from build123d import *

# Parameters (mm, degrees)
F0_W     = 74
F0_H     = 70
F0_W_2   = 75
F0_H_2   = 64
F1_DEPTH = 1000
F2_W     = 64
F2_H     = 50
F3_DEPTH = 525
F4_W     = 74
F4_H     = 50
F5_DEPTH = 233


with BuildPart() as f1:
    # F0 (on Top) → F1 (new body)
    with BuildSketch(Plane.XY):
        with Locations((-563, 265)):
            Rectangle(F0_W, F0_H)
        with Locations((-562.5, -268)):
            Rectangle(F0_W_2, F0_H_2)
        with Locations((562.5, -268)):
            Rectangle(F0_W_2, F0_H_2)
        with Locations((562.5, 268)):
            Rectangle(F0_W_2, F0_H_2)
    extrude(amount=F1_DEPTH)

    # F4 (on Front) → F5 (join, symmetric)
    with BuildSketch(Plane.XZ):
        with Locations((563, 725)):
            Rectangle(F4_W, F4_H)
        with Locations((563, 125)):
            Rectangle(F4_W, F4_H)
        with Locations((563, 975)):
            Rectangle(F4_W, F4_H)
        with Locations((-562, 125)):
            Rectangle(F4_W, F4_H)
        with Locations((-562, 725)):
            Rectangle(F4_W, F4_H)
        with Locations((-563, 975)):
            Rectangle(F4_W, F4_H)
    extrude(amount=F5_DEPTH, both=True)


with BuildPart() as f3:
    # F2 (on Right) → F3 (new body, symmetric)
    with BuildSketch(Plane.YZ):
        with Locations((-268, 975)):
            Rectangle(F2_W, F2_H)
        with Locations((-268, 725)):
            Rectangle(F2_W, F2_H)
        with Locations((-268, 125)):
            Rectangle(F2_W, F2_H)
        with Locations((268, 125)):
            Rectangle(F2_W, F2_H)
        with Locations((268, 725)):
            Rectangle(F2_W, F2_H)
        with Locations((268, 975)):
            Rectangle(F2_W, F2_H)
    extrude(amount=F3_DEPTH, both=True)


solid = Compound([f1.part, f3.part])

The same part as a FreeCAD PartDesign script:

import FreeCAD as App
import Part
import Sketcher
from FreeCAD import Vector

doc = App.newDocument("Part")
body = doc.addObject("PartDesign::Body", "Body")
body.AllowCompound = True

# Sketch on XY plane
sketch1 = body.newObject("Sketcher::SketchObject", "Sketch")
sketch1.AttachmentSupport = (doc.getObject("XY_Plane"), [""])
sketch1.MapMode = "FlatFace"
sketch1.addGeometry([
    Part.LineSegment(Vector(-600, 300, 0), Vector(-600, 230, 0)),  # 0
    Part.LineSegment(Vector(-600, 230, 0), Vector(-526, 230, 0)),  # 1
    Part.LineSegment(Vector(-526, 230, 0), Vector(-526, 300, 0)),  # 2
    Part.LineSegment(Vector(-526, 300, 0), Vector(-600, 300, 0)),  # 3
    Part.LineSegment(Vector(-600, -236, 0), Vector(-600, -300, 0)),  # 4
    Part.LineSegment(Vector(-600, -300, 0), Vector(-525, -300, 0)),  # 5
    Part.LineSegment(Vector(-525, -300, 0), Vector(-525, -236, 0)),  # 6
    Part.LineSegment(Vector(-525, -236, 0), Vector(-600, -236, 0)),  # 7
    Part.LineSegment(Vector(525, -236, 0), Vector(525, -300, 0)),  # 8
    Part.LineSegment(Vector(525, -300, 0), Vector(600, -300, 0)),  # 9
    Part.LineSegment(Vector(600, -300, 0), Vector(600, -236, 0)),  # 10
    Part.LineSegment(Vector(600, -236, 0), Vector(525, -236, 0)),  # 11
    Part.LineSegment(Vector(525, 300, 0), Vector(525, 236, 0)),  # 12
    Part.LineSegment(Vector(525, 236, 0), Vector(600, 236, 0)),  # 13
    Part.LineSegment(Vector(600, 236, 0), Vector(600, 300, 0)),  # 14
    Part.LineSegment(Vector(600, 300, 0), Vector(525, 300, 0)),  # 15
], False)
sketch1.addConstraint([
    Sketcher.Constraint("Coincident", 0, 2, 1, 1),
    Sketcher.Constraint("Coincident", 1, 2, 2, 1),
    Sketcher.Constraint("Coincident", 2, 2, 3, 1),
    Sketcher.Constraint("Coincident", 3, 2, 0, 1),
    Sketcher.Constraint("Coincident", 4, 2, 5, 1),
    Sketcher.Constraint("Coincident", 5, 2, 6, 1),
    Sketcher.Constraint("Coincident", 6, 2, 7, 1),
    Sketcher.Constraint("Coincident", 7, 2, 4, 1),
    Sketcher.Constraint("Coincident", 8, 2, 9, 1),
    Sketcher.Constraint("Coincident", 9, 2, 10, 1),
    Sketcher.Constraint("Coincident", 10, 2, 11, 1),
    Sketcher.Constraint("Coincident", 11, 2, 8, 1),
    Sketcher.Constraint("Coincident", 12, 2, 13, 1),
    Sketcher.Constraint("Coincident", 13, 2, 14, 1),
    Sketcher.Constraint("Coincident", 14, 2, 15, 1),
    Sketcher.Constraint("Coincident", 15, 2, 12, 1),
    Sketcher.Constraint("Vertical", 0),
    Sketcher.Constraint("Horizontal", 1),
    Sketcher.Constraint("Vertical", 2),
    Sketcher.Constraint("Horizontal", 3),
    Sketcher.Constraint("Vertical", 4),
    Sketcher.Constraint("Horizontal", 5),
    Sketcher.Constraint("Vertical", 6),
    Sketcher.Constraint("Horizontal", 7),
    Sketcher.Constraint("Vertical", 8),
    Sketcher.Constraint("Horizontal", 9),
    Sketcher.Constraint("Vertical", 10),
    Sketcher.Constraint("Horizontal", 11),
    Sketcher.Constraint("Vertical", 12),
    Sketcher.Constraint("Horizontal", 13),
    Sketcher.Constraint("Vertical", 14),
    Sketcher.Constraint("Horizontal", 15),
    Sketcher.Constraint("Symmetric", 3, 2, 9, 2, -1, 1),
    Sketcher.Constraint("Symmetric", 6, 2, 12, 2, -1, 1),
    Sketcher.Constraint("Symmetric", 4, 2, 14, 2, -1, 1),
    Sketcher.Constraint("Symmetric", 5, 2, 8, 2, -2),
    Sketcher.Constraint("Symmetric", 7, 2, 10, 2, -2),
    Sketcher.Constraint("DistanceX", 1, 1, 1, 2, 74.0),
    Sketcher.Constraint("DistanceX", 5, 1, 5, 2, 75.0),
    Sketcher.Constraint("DistanceY", 0, 2, 0, 1, 70.0),
    Sketcher.Constraint("DistanceY", 4, 2, 4, 1, 64.0),
    Sketcher.Constraint("DistanceX", 0, 2, -1, 1, 600.0),
    Sketcher.Constraint("DistanceY", -1, 1, 0, 2, 230.0),
])
pad1 = body.newObject("PartDesign::Pad", "Pad")
pad1.Profile = sketch1
pad1.Length = 1000

# Sketch on XZ plane
sketch2 = body.newObject("Sketcher::SketchObject", "Sketch001")
sketch2.AttachmentSupport = (doc.getObject("XZ_Plane"), [""])
sketch2.MapMode = "FlatFace"
sketch2.addGeometry([
    Part.LineSegment(Vector(526, 750, 0), Vector(526, 700, 0)),  # 0
    Part.LineSegment(Vector(526, 700, 0), Vector(600, 700, 0)),  # 1
    Part.LineSegment(Vector(600, 700, 0), Vector(600, 750, 0)),  # 2
    Part.LineSegment(Vector(600, 750, 0), Vector(526, 750, 0)),  # 3
    Part.LineSegment(Vector(526, 150, 0), Vector(526, 100, 0)),  # 4
    Part.LineSegment(Vector(526, 100, 0), Vector(600, 100, 0)),  # 5
    Part.LineSegment(Vector(600, 100, 0), Vector(600, 150, 0)),  # 6
    Part.LineSegment(Vector(600, 150, 0), Vector(526, 150, 0)),  # 7
    Part.LineSegment(Vector(526, 1000, 0), Vector(526, 950, 0)),  # 8
    Part.LineSegment(Vector(526, 950, 0), Vector(600, 950, 0)),  # 9
    Part.LineSegment(Vector(600, 950, 0), Vector(600, 1000, 0)),  # 10
    Part.LineSegment(Vector(600, 1000, 0), Vector(526, 1000, 0)),  # 11
    Part.LineSegment(Vector(-599, 150, 0), Vector(-599, 100, 0)),  # 12
    Part.LineSegment(Vector(-599, 100, 0), Vector(-525, 100, 0)),  # 13
    Part.LineSegment(Vector(-525, 100, 0), Vector(-525, 150, 0)),  # 14
    Part.LineSegment(Vector(-525, 150, 0), Vector(-599, 150, 0)),  # 15
    Part.LineSegment(Vector(-599, 750, 0), Vector(-599, 700, 0)),  # 16
    Part.LineSegment(Vector(-599, 700, 0), Vector(-525, 700, 0)),  # 17
    Part.LineSegment(Vector(-525, 700, 0), Vector(-525, 750, 0)),  # 18
    Part.LineSegment(Vector(-525, 750, 0), Vector(-599, 750, 0)),  # 19
    Part.LineSegment(Vector(-600, 1000, 0), Vector(-600, 950, 0)),  # 20
    Part.LineSegment(Vector(-600, 950, 0), Vector(-526, 950, 0)),  # 21
    Part.LineSegment(Vector(-526, 950, 0), Vector(-526, 1000, 0)),  # 22
    Part.LineSegment(Vector(-526, 1000, 0), Vector(-600, 1000, 0)),  # 23
], False)
sketch2.addConstraint([
    Sketcher.Constraint("Coincident", 0, 2, 1, 1),
    Sketcher.Constraint("Coincident", 1, 2, 2, 1),
    Sketcher.Constraint("Coincident", 2, 2, 3, 1),
    Sketcher.Constraint("Coincident", 3, 2, 0, 1),
    Sketcher.Constraint("Coincident", 4, 2, 5, 1),
    Sketcher.Constraint("Coincident", 5, 2, 6, 1),
    Sketcher.Constraint("Coincident", 6, 2, 7, 1),
    Sketcher.Constraint("Coincident", 7, 2, 4, 1),
    Sketcher.Constraint("Coincident", 8, 2, 9, 1),
    Sketcher.Constraint("Coincident", 9, 2, 10, 1),
    Sketcher.Constraint("Coincident", 10, 2, 11, 1),
    Sketcher.Constraint("Coincident", 11, 2, 8, 1),
    Sketcher.Constraint("Coincident", 12, 2, 13, 1),
    Sketcher.Constraint("Coincident", 13, 2, 14, 1),
    Sketcher.Constraint("Coincident", 14, 2, 15, 1),
    Sketcher.Constraint("Coincident", 15, 2, 12, 1),
    Sketcher.Constraint("Coincident", 16, 2, 17, 1),
    Sketcher.Constraint("Coincident", 17, 2, 18, 1),
    Sketcher.Constraint("Coincident", 18, 2, 19, 1),
    Sketcher.Constraint("Coincident", 19, 2, 16, 1),
    Sketcher.Constraint("Coincident", 20, 2, 21, 1),
    Sketcher.Constraint("Coincident", 21, 2, 22, 1),
    Sketcher.Constraint("Coincident", 22, 2, 23, 1),
    Sketcher.Constraint("Coincident", 23, 2, 20, 1),
    Sketcher.Constraint("Vertical", 0),
    Sketcher.Constraint("Horizontal", 1),
    Sketcher.Constraint("Vertical", 2),
    Sketcher.Constraint("Horizontal", 3),
    Sketcher.Constraint("Vertical", 4),
    Sketcher.Constraint("Horizontal", 5),
    Sketcher.Constraint("Vertical", 6),
    Sketcher.Constraint("Horizontal", 7),
    Sketcher.Constraint("Vertical", 8),
    Sketcher.Constraint("Horizontal", 9),
    Sketcher.Constraint("Vertical", 10),
    Sketcher.Constraint("Horizontal", 11),
    Sketcher.Constraint("Vertical", 12),
    Sketcher.Constraint("Horizontal", 13),
    Sketcher.Constraint("Vertical", 14),
    Sketcher.Constraint("Horizontal", 15),
    Sketcher.Constraint("Vertical", 16),
    Sketcher.Constraint("Horizontal", 17),
    Sketcher.Constraint("Vertical", 18),
    Sketcher.Constraint("Horizontal", 19),
    Sketcher.Constraint("Vertical", 20),
    Sketcher.Constraint("Horizontal", 21),
    Sketcher.Constraint("Vertical", 22),
    Sketcher.Constraint("Horizontal", 23),
    Sketcher.Constraint("Symmetric", 9, 2, 20, 2, -2),
    Sketcher.Constraint("Symmetric", 11, 2, 22, 2, -2),
    Sketcher.Constraint("Horizontal", 5, 2, 12, 2),
    Sketcher.Constraint("Horizontal", 7, 2, 14, 2),
    Sketcher.Constraint("Horizontal", 1, 2, 16, 2),
    Sketcher.Constraint("Horizontal", 3, 2, 18, 2),
    Sketcher.Constraint("Vertical", 3, 2, 4, 2),
    Sketcher.Constraint("Vertical", 2, 2, 5, 2),
    Sketcher.Constraint("Vertical", 7, 2, 8, 2),
    Sketcher.Constraint("Vertical", 6, 2, 9, 2),
    Sketcher.Constraint("Vertical", 15, 2, 16, 2),
    Sketcher.Constraint("Vertical", 14, 2, 17, 2),
    Sketcher.Constraint("Equal", 11, 13),
    Sketcher.Constraint("Equal", 2, 4),
    Sketcher.Constraint("Equal", 6, 8),
    Sketcher.Constraint("DistanceX", 1, 1, 1, 2, 74.0),
    Sketcher.Constraint("DistanceY", 0, 2, 0, 1, 50.0),
    Sketcher.Constraint("DistanceX", -1, 1, 0, 2, 526.0),
    Sketcher.Constraint("DistanceY", -1, 1, 0, 2, 700.0),
    Sketcher.Constraint("DistanceY", -1, 1, 4, 2, 100.0),
    Sketcher.Constraint("DistanceY", -1, 1, 8, 2, 950.0),
    Sketcher.Constraint("DistanceX", 12, 2, -1, 1, 599.0),
])
pad2 = body.newObject("PartDesign::Pad", "Pad001")
pad2.Profile = sketch2
pad2.Length = 466
pad2.Midplane = True
body2 = doc.addObject("PartDesign::Body", "Body001")
body2.AllowCompound = True

# Sketch on YZ plane
sketch3 = body2.newObject("Sketcher::SketchObject", "Sketch002")
sketch3.AttachmentSupport = (doc.getObject("YZ_Plane001"), [""])
sketch3.MapMode = "FlatFace"
sketch3.addGeometry([
    Part.LineSegment(Vector(-300, 1000, 0), Vector(-300, 950, 0)),  # 0
    Part.LineSegment(Vector(-300, 950, 0), Vector(-236, 950, 0)),  # 1
    Part.LineSegment(Vector(-236, 950, 0), Vector(-236, 1000, 0)),  # 2
    Part.LineSegment(Vector(-236, 1000, 0), Vector(-300, 1000, 0)),  # 3
    Part.LineSegment(Vector(-300, 750, 0), Vector(-300, 700, 0)),  # 4
    Part.LineSegment(Vector(-300, 700, 0), Vector(-236, 700, 0)),  # 5
    Part.LineSegment(Vector(-236, 700, 0), Vector(-236, 750, 0)),  # 6
    Part.LineSegment(Vector(-236, 750, 0), Vector(-300, 750, 0)),  # 7
    Part.LineSegment(Vector(-300, 150, 0), Vector(-300, 100, 0)),  # 8
    Part.LineSegment(Vector(-300, 100, 0), Vector(-236, 100, 0)),  # 9
    Part.LineSegment(Vector(-236, 100, 0), Vector(-236, 150, 0)),  # 10
    Part.LineSegment(Vector(-236, 150, 0), Vector(-300, 150, 0)),  # 11
    Part.LineSegment(Vector(236, 150, 0), Vector(236, 100, 0)),  # 12
    Part.LineSegment(Vector(236, 100, 0), Vector(300, 100, 0)),  # 13
    Part.LineSegment(Vector(300, 100, 0), Vector(300, 150, 0)),  # 14
    Part.LineSegment(Vector(300, 150, 0), Vector(236, 150, 0)),  # 15
    Part.LineSegment(Vector(236, 750, 0), Vector(236, 700, 0)),  # 16
    Part.LineSegment(Vector(236, 700, 0), Vector(300, 700, 0)),  # 17
    Part.LineSegment(Vector(300, 700, 0), Vector(300, 750, 0)),  # 18
    Part.LineSegment(Vector(300, 750, 0), Vector(236, 750, 0)),  # 19
    Part.LineSegment(Vector(236, 1000, 0), Vector(236, 950, 0)),  # 20
    Part.LineSegment(Vector(236, 950, 0), Vector(300, 950, 0)),  # 21
    Part.LineSegment(Vector(300, 950, 0), Vector(300, 1000, 0)),  # 22
    Part.LineSegment(Vector(300, 1000, 0), Vector(236, 1000, 0)),  # 23
], False)
sketch3.addConstraint([
    Sketcher.Constraint("Coincident", 0, 2, 1, 1),
    Sketcher.Constraint("Coincident", 1, 2, 2, 1),
    Sketcher.Constraint("Coincident", 2, 2, 3, 1),
    Sketcher.Constraint("Coincident", 3, 2, 0, 1),
    Sketcher.Constraint("Coincident", 4, 2, 5, 1),
    Sketcher.Constraint("Coincident", 5, 2, 6, 1),
    Sketcher.Constraint("Coincident", 6, 2, 7, 1),
    Sketcher.Constraint("Coincident", 7, 2, 4, 1),
    Sketcher.Constraint("Coincident", 8, 2, 9, 1),
    Sketcher.Constraint("Coincident", 9, 2, 10, 1),
    Sketcher.Constraint("Coincident", 10, 2, 11, 1),
    Sketcher.Constraint("Coincident", 11, 2, 8, 1),
    Sketcher.Constraint("Coincident", 12, 2, 13, 1),
    Sketcher.Constraint("Coincident", 13, 2, 14, 1),
    Sketcher.Constraint("Coincident", 14, 2, 15, 1),
    Sketcher.Constraint("Coincident", 15, 2, 12, 1),
    Sketcher.Constraint("Coincident", 16, 2, 17, 1),
    Sketcher.Constraint("Coincident", 17, 2, 18, 1),
    Sketcher.Constraint("Coincident", 18, 2, 19, 1),
    Sketcher.Constraint("Coincident", 19, 2, 16, 1),
    Sketcher.Constraint("Coincident", 20, 2, 21, 1),
    Sketcher.Constraint("Coincident", 21, 2, 22, 1),
    Sketcher.Constraint("Coincident", 22, 2, 23, 1),
    Sketcher.Constraint("Coincident", 23, 2, 20, 1),
    Sketcher.Constraint("Vertical", 0),
    Sketcher.Constraint("Horizontal", 1),
    Sketcher.Constraint("Vertical", 2),
    Sketcher.Constraint("Horizontal", 3),
    Sketcher.Constraint("Vertical", 4),
    Sketcher.Constraint("Horizontal", 5),
    Sketcher.Constraint("Vertical", 6),
    Sketcher.Constraint("Horizontal", 7),
    Sketcher.Constraint("Vertical", 8),
    Sketcher.Constraint("Horizontal", 9),
    Sketcher.Constraint("Vertical", 10),
    Sketcher.Constraint("Horizontal", 11),
    Sketcher.Constraint("Vertical", 12),
    Sketcher.Constraint("Horizontal", 13),
    Sketcher.Constraint("Vertical", 14),
    Sketcher.Constraint("Horizontal", 15),
    Sketcher.Constraint("Vertical", 16),
    Sketcher.Constraint("Horizontal", 17),
    Sketcher.Constraint("Vertical", 18),
    Sketcher.Constraint("Horizontal", 19),
    Sketcher.Constraint("Vertical", 20),
    Sketcher.Constraint("Horizontal", 21),
    Sketcher.Constraint("Vertical", 22),
    Sketcher.Constraint("Horizontal", 23),
    Sketcher.Constraint("Symmetric", 9, 2, 12, 2, -2),
    Sketcher.Constraint("Symmetric", 11, 2, 14, 2, -2),
    Sketcher.Constraint("Symmetric", 5, 2, 16, 2, -2),
    Sketcher.Constraint("Symmetric", 7, 2, 18, 2, -2),
    Sketcher.Constraint("Symmetric", 1, 2, 20, 2, -2),
    Sketcher.Constraint("Symmetric", 3, 2, 22, 2, -2),
    Sketcher.Constraint("Vertical", 3, 2, 4, 2),
    Sketcher.Constraint("Vertical", 2, 2, 5, 2),
    Sketcher.Constraint("Vertical", 7, 2, 8, 2),
    Sketcher.Constraint("Vertical", 6, 2, 9, 2),
    Sketcher.Constraint("Equal", 2, 4),
    Sketcher.Constraint("Equal", 6, 8),
    Sketcher.Constraint("DistanceX", 1, 1, 1, 2, 64.0),
    Sketcher.Constraint("DistanceY", 0, 2, 0, 1, 50.0),
    Sketcher.Constraint("DistanceX", 0, 2, -1, 1, 300.0),
    Sketcher.Constraint("DistanceY", -1, 1, 0, 2, 950.0),
    Sketcher.Constraint("DistanceY", -1, 1, 4, 2, 700.0),
    Sketcher.Constraint("DistanceY", -1, 1, 8, 2, 100.0),
])
pad3 = body2.newObject("PartDesign::Pad", "Pad002")
pad3.Profile = sketch3
pad3.Length = 1050
pad3.Midplane = True

doc.recompute()
